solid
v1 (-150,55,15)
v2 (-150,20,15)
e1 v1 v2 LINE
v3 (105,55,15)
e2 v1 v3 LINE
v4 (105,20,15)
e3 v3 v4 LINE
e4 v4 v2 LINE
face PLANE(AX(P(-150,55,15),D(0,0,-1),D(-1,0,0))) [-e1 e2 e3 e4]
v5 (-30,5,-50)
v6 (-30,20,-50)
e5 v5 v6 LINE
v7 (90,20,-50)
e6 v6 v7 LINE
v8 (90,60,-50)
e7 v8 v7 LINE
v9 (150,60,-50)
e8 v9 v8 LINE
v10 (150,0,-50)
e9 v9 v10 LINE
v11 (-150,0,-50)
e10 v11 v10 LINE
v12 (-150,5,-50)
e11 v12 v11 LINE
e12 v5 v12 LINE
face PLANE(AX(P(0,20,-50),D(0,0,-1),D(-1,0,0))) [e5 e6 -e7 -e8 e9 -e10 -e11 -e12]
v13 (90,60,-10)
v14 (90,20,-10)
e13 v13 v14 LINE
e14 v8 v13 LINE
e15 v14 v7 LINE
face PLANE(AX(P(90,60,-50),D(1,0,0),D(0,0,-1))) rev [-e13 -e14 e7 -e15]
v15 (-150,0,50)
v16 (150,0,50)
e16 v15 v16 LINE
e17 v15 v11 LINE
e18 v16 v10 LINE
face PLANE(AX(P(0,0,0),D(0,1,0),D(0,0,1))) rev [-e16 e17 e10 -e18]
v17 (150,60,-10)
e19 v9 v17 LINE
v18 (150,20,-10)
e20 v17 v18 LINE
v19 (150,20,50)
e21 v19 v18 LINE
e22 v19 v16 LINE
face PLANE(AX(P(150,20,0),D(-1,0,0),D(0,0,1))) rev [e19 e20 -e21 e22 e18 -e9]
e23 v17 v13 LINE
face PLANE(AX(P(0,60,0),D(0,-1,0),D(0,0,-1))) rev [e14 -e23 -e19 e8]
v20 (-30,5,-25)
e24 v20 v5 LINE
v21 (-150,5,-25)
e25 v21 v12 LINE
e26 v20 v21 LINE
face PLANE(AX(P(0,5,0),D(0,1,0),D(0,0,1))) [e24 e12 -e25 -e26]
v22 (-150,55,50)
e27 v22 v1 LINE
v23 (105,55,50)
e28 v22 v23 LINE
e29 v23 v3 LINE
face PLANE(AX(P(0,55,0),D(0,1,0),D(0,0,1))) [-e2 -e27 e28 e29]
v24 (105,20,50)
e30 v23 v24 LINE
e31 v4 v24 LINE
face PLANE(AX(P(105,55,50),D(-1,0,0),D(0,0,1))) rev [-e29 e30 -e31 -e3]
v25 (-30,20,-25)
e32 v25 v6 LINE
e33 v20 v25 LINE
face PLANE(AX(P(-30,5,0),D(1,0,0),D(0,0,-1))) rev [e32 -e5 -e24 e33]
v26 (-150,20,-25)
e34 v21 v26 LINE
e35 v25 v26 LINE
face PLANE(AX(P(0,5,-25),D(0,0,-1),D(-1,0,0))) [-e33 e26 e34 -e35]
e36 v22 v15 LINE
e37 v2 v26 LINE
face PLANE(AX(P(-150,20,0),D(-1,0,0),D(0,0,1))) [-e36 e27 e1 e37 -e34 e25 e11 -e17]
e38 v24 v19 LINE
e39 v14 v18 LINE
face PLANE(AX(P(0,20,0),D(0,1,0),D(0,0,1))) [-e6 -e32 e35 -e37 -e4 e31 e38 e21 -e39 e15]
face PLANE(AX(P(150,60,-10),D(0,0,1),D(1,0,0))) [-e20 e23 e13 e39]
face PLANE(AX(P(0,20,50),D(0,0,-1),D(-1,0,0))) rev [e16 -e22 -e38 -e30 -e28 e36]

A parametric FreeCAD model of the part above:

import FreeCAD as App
import Part
import Sketcher

V = App.Vector
Q = App.Units.Quantity


def add_polygon(sketch, points):
    """Adds a closed chain of lines whose ends are joined by coincident constraints."""
    first, n = sketch.GeometryCount, len(points)
    for a, b in zip(points, points[1:] + points[:1]):
        sketch.addGeometry(Part.LineSegment(App.Vector(*a, 0), App.Vector(*b, 0)), False)
    for i in range(n):
        sketch.addConstraint(Sketcher.Constraint("Coincident", first + i, 2, first + (i + 1) % n, 1))

doc = App.newDocument("Part")
body = doc.addObject("PartDesign::Body", "Body")

sketch1 = body.newObject("Sketcher::SketchObject", "Sketch")
sketch1.AttachmentSupport = (doc.getObject("XZ_Plane"), [""])
sketch1.MapMode = "FlatFace"
add_polygon(sketch1, [(-150, -50), (-150, 50), (150, 50), (150, -50)])
sketch1.addConstraint(Sketcher.Constraint("Vertical", 0))
sketch1.addConstraint(Sketcher.Constraint("Horizontal", 1))
sketch1.addConstraint(Sketcher.Constraint("Vertical", 2))
sketch1.addConstraint(Sketcher.Constraint("Horizontal", 3))
sketch1.addConstraint(Sketcher.Constraint("Symmetric", 0, 2, 2, 2, -1, 1))
sketch1.addConstraint(Sketcher.Constraint("DistanceX", 1, 1, 1, 2, Q("300 mm")))
sketch1.addConstraint(Sketcher.Constraint("DistanceY", 0, 1, 0, 2, Q("100 mm")))
pad1 = body.newObject("PartDesign::Pad", "Pad")
pad1.Profile = sketch1
pad1.Length = 20
pad1.Reversed = True

sketch2 = body.newObject("Sketcher::SketchObject", "Sketch001")
sketch2.AttachmentSupport = (doc.getObject("XZ_Plane"), [""])
sketch2.MapMode = "FlatFace"
add_polygon(sketch2, [(-150, 15), (-150, 50), (105, 50), (105, 15)])
sketch2.addConstraint(Sketcher.Constraint("Vertical", 0))
sketch2.addConstraint(Sketcher.Constraint("Horizontal", 1))
sketch2.addConstraint(Sketcher.Constraint("Vertical", 2))
sketch2.addConstraint(Sketcher.Constraint("Horizontal", 3))
sketch2.addConstraint(Sketcher.Constraint("DistanceX", 1, 1, 1, 2, Q("255 mm")))
sketch2.addConstraint(Sketcher.Constraint("DistanceY", 0, 1, 0, 2, Q("35 mm")))
sketch2.addConstraint(Sketcher.Constraint("DistanceX", 0, 2, -1, 1, Q("150 mm")))
sketch2.addConstraint(Sketcher.Constraint("DistanceY", -1, 1, 0, 2, Q("50 mm")))
pad2 = body.newObject("PartDesign::Pad", "Pad001")
pad2.Profile = sketch2
pad2.Length = 55
pad2.Reversed = True

sketch3 = body.newObject("Sketcher::SketchObject", "Sketch002")
sketch3.AttachmentSupport = (doc.getObject("XZ_Plane"), [""])
sketch3.MapMode = "FlatFace"
add_polygon(sketch3, [(90, -50), (90, -10), (150, -10), (150, -50)])
sketch3.addConstraint(Sketcher.Constraint("Vertical", 0))
sketch3.addConstraint(Sketcher.Constraint("Horizontal", 1))
sketch3.addConstraint(Sketcher.Constraint("Vertical", 2))
sketch3.addConstraint(Sketcher.Constraint("Horizontal", 3))
sketch3.addConstraint(Sketcher.Constraint("DistanceX", 1, 1, 1, 2, Q("60 mm")))
sketch3.addConstraint(Sketcher.Constraint("DistanceY", 0, 1, 0, 2, Q("40 mm")))
sketch3.addConstraint(Sketcher.Constraint("DistanceX", -1, 1, 0, 2, Q("90 mm")))
sketch3.addConstraint(Sketcher.Constraint("DistanceY", 0, 2, -1, 1, Q("10 mm")))
pad3 = body.newObject("PartDesign::Pad", "Pad002")
pad3.Profile = sketch3
pad3.Length = 60
pad3.Reversed = True

sketch4 = body.newObject("Sketcher::SketchObject", "Sketch003")
sketch4.AttachmentSupport = (doc.getObject("XZ_Plane"), [""])
sketch4.MapMode = "FlatFace"
sketch4.AttachmentOffset = App.Placement(V(0, 0, -20), App.Rotation())
add_polygon(sketch4, [(-150, -50), (-150, -25), (-30, -25), (-30, -50)])
sketch4.addConstraint(Sketcher.Constraint("Vertical", 0))
sketch4.addConstraint(Sketcher.Constraint("Horizontal", 1))
sketch4.addConstraint(Sketcher.Constraint("Vertical", 2))
sketch4.addConstraint(Sketcher.Constraint("Horizontal", 3))
sketch4.addConstraint(Sketcher.Constraint("DistanceX", 1, 1, 1, 2, Q("120 mm")))
sketch4.addConstraint(Sketcher.Constraint("DistanceY", 0, 1, 0, 2, Q("25 mm")))
sketch4.addConstraint(Sketcher.Constraint("DistanceX", 0, 2, -1, 1, Q("150 mm")))
sketch4.addConstraint(Sketcher.Constraint("DistanceY", 0, 2, -1, 1, Q("25 mm")))
pocket1 = body.newObject("PartDesign::Pocket", "Pocket")
pocket1.Profile = sketch4
pocket1.Length = 15
pocket1.Reversed = True

doc.recompute()
